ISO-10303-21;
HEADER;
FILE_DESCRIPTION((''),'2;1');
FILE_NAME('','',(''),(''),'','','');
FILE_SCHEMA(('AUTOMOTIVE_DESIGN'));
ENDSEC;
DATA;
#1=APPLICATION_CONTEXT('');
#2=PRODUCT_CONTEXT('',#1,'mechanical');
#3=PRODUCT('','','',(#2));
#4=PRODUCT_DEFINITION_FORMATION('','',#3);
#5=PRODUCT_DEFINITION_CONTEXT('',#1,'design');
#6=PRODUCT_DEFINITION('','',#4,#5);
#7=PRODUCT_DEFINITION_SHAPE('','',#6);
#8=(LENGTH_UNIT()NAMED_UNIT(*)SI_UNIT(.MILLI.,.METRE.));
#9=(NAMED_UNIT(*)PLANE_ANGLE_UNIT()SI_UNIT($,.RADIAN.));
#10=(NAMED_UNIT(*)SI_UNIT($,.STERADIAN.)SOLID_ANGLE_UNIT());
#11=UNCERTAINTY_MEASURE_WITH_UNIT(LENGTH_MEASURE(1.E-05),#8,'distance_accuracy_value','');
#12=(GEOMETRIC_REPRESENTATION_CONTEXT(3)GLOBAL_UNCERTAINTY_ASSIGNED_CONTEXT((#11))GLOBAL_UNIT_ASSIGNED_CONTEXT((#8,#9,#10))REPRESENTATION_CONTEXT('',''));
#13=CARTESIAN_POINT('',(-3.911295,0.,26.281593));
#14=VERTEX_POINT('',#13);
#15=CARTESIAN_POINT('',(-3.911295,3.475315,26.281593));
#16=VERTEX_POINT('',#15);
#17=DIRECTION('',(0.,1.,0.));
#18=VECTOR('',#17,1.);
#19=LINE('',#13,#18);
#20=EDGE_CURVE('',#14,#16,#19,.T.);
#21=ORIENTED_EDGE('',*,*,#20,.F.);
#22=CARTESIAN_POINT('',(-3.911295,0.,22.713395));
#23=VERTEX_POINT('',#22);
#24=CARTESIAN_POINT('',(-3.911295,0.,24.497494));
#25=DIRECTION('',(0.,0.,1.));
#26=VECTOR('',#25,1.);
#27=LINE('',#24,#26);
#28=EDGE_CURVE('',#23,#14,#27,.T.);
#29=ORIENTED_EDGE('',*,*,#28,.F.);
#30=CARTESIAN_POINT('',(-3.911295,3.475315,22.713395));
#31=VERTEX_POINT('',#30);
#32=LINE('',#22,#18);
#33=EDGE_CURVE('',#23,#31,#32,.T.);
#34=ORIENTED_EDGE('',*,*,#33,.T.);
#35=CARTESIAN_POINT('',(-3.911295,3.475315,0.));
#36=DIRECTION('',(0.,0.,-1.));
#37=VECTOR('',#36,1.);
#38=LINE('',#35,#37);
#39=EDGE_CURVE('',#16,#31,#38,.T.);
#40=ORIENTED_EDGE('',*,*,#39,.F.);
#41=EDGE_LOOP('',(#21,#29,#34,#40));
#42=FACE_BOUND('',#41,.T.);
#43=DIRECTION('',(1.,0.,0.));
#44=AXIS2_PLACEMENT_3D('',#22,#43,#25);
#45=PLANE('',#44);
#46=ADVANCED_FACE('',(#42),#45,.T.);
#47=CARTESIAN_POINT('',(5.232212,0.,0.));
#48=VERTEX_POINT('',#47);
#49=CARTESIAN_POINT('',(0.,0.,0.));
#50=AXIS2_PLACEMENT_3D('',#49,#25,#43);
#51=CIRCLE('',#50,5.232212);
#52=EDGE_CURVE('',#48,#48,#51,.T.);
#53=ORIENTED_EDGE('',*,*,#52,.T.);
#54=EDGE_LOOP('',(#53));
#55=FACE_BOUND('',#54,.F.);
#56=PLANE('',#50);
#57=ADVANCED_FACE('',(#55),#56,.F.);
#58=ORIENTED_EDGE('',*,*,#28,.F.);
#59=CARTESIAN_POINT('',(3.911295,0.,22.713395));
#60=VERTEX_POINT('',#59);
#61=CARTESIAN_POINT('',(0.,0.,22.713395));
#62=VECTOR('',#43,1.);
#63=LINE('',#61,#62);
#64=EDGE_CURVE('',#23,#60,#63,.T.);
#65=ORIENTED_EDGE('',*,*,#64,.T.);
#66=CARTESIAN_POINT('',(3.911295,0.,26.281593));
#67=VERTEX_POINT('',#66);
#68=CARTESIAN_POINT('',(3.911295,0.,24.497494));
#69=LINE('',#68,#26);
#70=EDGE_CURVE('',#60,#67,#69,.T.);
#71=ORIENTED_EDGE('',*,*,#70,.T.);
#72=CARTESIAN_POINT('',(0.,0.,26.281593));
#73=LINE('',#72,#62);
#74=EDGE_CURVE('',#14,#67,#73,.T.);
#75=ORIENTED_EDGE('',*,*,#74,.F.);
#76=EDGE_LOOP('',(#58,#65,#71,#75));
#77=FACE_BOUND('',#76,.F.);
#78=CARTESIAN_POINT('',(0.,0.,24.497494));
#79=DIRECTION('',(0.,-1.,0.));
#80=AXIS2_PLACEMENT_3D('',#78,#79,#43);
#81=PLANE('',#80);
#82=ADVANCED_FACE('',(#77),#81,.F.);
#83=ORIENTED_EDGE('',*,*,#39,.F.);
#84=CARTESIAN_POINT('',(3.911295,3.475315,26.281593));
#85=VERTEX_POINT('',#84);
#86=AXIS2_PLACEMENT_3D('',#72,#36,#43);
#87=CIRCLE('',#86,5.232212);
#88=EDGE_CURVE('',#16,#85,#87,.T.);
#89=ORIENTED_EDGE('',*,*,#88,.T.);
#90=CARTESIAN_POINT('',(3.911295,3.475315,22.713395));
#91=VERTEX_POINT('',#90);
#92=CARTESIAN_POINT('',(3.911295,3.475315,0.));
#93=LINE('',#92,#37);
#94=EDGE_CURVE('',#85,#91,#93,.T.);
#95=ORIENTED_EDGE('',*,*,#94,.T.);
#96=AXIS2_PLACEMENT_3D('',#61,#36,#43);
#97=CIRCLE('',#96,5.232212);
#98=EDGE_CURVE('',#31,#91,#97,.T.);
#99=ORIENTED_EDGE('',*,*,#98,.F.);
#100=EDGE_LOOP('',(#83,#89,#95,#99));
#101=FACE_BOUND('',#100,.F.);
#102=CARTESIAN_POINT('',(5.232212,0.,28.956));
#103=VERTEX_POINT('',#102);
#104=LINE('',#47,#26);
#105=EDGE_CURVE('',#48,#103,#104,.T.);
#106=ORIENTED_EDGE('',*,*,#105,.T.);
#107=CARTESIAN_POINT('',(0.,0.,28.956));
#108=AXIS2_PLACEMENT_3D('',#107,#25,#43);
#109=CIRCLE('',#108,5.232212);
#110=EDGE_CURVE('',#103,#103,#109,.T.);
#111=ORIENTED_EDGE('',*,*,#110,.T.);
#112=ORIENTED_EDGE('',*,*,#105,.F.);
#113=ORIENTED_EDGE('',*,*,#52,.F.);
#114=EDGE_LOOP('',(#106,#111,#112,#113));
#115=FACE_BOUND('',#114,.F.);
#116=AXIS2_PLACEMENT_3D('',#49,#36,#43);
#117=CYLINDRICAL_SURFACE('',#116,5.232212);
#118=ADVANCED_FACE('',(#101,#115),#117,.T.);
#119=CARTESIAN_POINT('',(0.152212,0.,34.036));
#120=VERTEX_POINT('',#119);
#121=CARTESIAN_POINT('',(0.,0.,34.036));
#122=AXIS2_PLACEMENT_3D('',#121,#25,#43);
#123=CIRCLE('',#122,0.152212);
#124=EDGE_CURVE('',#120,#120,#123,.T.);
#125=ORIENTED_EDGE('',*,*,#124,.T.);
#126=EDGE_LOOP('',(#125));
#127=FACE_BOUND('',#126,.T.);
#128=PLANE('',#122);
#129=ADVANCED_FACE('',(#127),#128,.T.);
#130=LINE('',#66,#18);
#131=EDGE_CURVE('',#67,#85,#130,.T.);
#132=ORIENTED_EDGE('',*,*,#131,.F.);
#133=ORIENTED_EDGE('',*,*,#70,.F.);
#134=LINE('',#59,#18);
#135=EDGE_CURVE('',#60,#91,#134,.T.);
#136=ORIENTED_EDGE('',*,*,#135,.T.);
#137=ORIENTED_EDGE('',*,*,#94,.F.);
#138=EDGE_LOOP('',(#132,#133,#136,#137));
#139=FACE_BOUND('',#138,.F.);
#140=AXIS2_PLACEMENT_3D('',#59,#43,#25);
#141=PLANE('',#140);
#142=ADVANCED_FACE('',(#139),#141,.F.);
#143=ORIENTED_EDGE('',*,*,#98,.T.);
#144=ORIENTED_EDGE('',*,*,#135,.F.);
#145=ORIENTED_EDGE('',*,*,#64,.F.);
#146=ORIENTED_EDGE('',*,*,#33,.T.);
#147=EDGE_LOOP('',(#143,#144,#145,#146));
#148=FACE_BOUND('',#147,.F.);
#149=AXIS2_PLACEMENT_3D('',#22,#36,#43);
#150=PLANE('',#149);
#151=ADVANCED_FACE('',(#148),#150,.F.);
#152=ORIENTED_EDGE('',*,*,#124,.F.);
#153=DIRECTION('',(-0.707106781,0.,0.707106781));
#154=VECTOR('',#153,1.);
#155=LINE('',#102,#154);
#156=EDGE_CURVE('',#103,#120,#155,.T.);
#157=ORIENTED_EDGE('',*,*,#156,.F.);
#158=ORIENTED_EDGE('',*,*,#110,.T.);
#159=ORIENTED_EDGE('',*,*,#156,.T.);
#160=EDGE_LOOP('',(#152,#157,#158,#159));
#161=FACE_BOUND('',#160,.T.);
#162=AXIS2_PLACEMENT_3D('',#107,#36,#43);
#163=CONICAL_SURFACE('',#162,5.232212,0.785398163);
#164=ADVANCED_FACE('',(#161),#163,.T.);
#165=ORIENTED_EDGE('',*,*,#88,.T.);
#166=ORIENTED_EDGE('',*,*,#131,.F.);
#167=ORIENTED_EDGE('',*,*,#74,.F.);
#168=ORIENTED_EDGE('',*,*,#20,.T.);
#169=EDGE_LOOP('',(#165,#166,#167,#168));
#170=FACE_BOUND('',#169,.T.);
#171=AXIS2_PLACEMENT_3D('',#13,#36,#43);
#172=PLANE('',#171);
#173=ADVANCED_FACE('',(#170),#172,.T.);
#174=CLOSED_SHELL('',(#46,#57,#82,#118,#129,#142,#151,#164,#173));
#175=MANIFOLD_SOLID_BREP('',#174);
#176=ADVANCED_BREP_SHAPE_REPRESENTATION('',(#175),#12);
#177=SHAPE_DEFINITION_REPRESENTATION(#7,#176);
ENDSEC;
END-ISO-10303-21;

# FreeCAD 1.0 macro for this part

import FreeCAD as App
import Part
import Sketcher
Q = App.Units.Quantity


def edges_at(feature, points):
    """Names of the edges that pass closest to the given points."""
    edges = feature.Shape.Edges
    near = lambda p: min(range(len(edges)), key=lambda i: edges[i].distToShape(Part.Vertex(*p))[0])
    return sorted({f"Edge{near(p) + 1}" for p in points})

doc = App.newDocument("Part")
body = doc.addObject("PartDesign::Body", "Body")

# Sketch on XY plane
sketch1 = body.newObject("Sketcher::SketchObject", "Sketch")
sketch1.AttachmentSupport = (doc.getObject("XY_Plane"), [""])
sketch1.MapMode = "FlatFace"
sketch1.addGeometry(Part.Circle(App.Vector(0, 0, 0), App.Vector(0, 0, 1), 5.232212), False)
sketch1.addConstraint([
    Sketcher.Constraint("Coincident", 0, 3, -1, 1),
    Sketcher.Constraint("Diameter", 0, Q("10.464424 mm")),
])
pad1 = body.newObject("PartDesign::Pad", "Pad")
pad1.Profile = sketch1
pad1.Length = Q("1.34 in")
doc.recompute()

chamfer = body.newObject("PartDesign::Chamfer", "Chamfer")
chamfer.Base = (pad1, edges_at(pad1, [(-5.232, 0, 34.036)]))
chamfer.Size = Q("0.2 in")

# Sketch on XZ plane
sketch2 = body.newObject("Sketcher::SketchObject", "Sketch001")
sketch2.AttachmentSupport = (doc.getObject("XZ_Plane"), [""])
sketch2.MapMode = "FlatFace"
sketch2.addGeometry([
    Part.LineSegment(App.Vector(-3.911295, 26.281593, 0), App.Vector(-3.911295, 22.713395, 0)),
    Part.LineSegment(App.Vector(-3.911295, 22.713395, 0), App.Vector(3.911295, 22.713395, 0)),
    Part.LineSegment(App.Vector(3.911295, 22.713395, 0), App.Vector(3.911295, 26.281593, 0)),
    Part.LineSegment(App.Vector(3.911295, 26.281593, 0), App.Vector(-3.911295, 26.281593, 0)),
], False)
sketch2.addConstraint([
    Sketcher.Constraint("Coincident", 0, 2, 1, 1),
    Sketcher.Constraint("Coincident", 1, 2, 2, 1),
    Sketcher.Constraint("Coincident", 2, 2, 3, 1),
    Sketcher.Constraint("Coincident", 3, 2, 0, 1),
    Sketcher.Constraint("Vertical", 0),
    Sketcher.Constraint("Horizontal", 1),
    Sketcher.Constraint("Vertical", 2),
    Sketcher.Constraint("Horizontal", 3),
    Sketcher.Constraint("DistanceY", 0, 2, 0, 1, Q("3.568198 mm")),
    Sketcher.Constraint("DistanceX", 1, 1, 1, 2, Q("7.82259 mm")),
    Sketcher.Constraint("DistanceX", 0, 2, -1, 1, Q("3.911295 mm")),
    Sketcher.Constraint("DistanceY", -1, 1, 0, 2, Q("22.713395 mm")),
])
pocket1 = body.newObject("PartDesign::Pocket", "Pocket")
pocket1.Profile = sketch2
pocket1.Length = Q("1 in")

doc.recompute()
